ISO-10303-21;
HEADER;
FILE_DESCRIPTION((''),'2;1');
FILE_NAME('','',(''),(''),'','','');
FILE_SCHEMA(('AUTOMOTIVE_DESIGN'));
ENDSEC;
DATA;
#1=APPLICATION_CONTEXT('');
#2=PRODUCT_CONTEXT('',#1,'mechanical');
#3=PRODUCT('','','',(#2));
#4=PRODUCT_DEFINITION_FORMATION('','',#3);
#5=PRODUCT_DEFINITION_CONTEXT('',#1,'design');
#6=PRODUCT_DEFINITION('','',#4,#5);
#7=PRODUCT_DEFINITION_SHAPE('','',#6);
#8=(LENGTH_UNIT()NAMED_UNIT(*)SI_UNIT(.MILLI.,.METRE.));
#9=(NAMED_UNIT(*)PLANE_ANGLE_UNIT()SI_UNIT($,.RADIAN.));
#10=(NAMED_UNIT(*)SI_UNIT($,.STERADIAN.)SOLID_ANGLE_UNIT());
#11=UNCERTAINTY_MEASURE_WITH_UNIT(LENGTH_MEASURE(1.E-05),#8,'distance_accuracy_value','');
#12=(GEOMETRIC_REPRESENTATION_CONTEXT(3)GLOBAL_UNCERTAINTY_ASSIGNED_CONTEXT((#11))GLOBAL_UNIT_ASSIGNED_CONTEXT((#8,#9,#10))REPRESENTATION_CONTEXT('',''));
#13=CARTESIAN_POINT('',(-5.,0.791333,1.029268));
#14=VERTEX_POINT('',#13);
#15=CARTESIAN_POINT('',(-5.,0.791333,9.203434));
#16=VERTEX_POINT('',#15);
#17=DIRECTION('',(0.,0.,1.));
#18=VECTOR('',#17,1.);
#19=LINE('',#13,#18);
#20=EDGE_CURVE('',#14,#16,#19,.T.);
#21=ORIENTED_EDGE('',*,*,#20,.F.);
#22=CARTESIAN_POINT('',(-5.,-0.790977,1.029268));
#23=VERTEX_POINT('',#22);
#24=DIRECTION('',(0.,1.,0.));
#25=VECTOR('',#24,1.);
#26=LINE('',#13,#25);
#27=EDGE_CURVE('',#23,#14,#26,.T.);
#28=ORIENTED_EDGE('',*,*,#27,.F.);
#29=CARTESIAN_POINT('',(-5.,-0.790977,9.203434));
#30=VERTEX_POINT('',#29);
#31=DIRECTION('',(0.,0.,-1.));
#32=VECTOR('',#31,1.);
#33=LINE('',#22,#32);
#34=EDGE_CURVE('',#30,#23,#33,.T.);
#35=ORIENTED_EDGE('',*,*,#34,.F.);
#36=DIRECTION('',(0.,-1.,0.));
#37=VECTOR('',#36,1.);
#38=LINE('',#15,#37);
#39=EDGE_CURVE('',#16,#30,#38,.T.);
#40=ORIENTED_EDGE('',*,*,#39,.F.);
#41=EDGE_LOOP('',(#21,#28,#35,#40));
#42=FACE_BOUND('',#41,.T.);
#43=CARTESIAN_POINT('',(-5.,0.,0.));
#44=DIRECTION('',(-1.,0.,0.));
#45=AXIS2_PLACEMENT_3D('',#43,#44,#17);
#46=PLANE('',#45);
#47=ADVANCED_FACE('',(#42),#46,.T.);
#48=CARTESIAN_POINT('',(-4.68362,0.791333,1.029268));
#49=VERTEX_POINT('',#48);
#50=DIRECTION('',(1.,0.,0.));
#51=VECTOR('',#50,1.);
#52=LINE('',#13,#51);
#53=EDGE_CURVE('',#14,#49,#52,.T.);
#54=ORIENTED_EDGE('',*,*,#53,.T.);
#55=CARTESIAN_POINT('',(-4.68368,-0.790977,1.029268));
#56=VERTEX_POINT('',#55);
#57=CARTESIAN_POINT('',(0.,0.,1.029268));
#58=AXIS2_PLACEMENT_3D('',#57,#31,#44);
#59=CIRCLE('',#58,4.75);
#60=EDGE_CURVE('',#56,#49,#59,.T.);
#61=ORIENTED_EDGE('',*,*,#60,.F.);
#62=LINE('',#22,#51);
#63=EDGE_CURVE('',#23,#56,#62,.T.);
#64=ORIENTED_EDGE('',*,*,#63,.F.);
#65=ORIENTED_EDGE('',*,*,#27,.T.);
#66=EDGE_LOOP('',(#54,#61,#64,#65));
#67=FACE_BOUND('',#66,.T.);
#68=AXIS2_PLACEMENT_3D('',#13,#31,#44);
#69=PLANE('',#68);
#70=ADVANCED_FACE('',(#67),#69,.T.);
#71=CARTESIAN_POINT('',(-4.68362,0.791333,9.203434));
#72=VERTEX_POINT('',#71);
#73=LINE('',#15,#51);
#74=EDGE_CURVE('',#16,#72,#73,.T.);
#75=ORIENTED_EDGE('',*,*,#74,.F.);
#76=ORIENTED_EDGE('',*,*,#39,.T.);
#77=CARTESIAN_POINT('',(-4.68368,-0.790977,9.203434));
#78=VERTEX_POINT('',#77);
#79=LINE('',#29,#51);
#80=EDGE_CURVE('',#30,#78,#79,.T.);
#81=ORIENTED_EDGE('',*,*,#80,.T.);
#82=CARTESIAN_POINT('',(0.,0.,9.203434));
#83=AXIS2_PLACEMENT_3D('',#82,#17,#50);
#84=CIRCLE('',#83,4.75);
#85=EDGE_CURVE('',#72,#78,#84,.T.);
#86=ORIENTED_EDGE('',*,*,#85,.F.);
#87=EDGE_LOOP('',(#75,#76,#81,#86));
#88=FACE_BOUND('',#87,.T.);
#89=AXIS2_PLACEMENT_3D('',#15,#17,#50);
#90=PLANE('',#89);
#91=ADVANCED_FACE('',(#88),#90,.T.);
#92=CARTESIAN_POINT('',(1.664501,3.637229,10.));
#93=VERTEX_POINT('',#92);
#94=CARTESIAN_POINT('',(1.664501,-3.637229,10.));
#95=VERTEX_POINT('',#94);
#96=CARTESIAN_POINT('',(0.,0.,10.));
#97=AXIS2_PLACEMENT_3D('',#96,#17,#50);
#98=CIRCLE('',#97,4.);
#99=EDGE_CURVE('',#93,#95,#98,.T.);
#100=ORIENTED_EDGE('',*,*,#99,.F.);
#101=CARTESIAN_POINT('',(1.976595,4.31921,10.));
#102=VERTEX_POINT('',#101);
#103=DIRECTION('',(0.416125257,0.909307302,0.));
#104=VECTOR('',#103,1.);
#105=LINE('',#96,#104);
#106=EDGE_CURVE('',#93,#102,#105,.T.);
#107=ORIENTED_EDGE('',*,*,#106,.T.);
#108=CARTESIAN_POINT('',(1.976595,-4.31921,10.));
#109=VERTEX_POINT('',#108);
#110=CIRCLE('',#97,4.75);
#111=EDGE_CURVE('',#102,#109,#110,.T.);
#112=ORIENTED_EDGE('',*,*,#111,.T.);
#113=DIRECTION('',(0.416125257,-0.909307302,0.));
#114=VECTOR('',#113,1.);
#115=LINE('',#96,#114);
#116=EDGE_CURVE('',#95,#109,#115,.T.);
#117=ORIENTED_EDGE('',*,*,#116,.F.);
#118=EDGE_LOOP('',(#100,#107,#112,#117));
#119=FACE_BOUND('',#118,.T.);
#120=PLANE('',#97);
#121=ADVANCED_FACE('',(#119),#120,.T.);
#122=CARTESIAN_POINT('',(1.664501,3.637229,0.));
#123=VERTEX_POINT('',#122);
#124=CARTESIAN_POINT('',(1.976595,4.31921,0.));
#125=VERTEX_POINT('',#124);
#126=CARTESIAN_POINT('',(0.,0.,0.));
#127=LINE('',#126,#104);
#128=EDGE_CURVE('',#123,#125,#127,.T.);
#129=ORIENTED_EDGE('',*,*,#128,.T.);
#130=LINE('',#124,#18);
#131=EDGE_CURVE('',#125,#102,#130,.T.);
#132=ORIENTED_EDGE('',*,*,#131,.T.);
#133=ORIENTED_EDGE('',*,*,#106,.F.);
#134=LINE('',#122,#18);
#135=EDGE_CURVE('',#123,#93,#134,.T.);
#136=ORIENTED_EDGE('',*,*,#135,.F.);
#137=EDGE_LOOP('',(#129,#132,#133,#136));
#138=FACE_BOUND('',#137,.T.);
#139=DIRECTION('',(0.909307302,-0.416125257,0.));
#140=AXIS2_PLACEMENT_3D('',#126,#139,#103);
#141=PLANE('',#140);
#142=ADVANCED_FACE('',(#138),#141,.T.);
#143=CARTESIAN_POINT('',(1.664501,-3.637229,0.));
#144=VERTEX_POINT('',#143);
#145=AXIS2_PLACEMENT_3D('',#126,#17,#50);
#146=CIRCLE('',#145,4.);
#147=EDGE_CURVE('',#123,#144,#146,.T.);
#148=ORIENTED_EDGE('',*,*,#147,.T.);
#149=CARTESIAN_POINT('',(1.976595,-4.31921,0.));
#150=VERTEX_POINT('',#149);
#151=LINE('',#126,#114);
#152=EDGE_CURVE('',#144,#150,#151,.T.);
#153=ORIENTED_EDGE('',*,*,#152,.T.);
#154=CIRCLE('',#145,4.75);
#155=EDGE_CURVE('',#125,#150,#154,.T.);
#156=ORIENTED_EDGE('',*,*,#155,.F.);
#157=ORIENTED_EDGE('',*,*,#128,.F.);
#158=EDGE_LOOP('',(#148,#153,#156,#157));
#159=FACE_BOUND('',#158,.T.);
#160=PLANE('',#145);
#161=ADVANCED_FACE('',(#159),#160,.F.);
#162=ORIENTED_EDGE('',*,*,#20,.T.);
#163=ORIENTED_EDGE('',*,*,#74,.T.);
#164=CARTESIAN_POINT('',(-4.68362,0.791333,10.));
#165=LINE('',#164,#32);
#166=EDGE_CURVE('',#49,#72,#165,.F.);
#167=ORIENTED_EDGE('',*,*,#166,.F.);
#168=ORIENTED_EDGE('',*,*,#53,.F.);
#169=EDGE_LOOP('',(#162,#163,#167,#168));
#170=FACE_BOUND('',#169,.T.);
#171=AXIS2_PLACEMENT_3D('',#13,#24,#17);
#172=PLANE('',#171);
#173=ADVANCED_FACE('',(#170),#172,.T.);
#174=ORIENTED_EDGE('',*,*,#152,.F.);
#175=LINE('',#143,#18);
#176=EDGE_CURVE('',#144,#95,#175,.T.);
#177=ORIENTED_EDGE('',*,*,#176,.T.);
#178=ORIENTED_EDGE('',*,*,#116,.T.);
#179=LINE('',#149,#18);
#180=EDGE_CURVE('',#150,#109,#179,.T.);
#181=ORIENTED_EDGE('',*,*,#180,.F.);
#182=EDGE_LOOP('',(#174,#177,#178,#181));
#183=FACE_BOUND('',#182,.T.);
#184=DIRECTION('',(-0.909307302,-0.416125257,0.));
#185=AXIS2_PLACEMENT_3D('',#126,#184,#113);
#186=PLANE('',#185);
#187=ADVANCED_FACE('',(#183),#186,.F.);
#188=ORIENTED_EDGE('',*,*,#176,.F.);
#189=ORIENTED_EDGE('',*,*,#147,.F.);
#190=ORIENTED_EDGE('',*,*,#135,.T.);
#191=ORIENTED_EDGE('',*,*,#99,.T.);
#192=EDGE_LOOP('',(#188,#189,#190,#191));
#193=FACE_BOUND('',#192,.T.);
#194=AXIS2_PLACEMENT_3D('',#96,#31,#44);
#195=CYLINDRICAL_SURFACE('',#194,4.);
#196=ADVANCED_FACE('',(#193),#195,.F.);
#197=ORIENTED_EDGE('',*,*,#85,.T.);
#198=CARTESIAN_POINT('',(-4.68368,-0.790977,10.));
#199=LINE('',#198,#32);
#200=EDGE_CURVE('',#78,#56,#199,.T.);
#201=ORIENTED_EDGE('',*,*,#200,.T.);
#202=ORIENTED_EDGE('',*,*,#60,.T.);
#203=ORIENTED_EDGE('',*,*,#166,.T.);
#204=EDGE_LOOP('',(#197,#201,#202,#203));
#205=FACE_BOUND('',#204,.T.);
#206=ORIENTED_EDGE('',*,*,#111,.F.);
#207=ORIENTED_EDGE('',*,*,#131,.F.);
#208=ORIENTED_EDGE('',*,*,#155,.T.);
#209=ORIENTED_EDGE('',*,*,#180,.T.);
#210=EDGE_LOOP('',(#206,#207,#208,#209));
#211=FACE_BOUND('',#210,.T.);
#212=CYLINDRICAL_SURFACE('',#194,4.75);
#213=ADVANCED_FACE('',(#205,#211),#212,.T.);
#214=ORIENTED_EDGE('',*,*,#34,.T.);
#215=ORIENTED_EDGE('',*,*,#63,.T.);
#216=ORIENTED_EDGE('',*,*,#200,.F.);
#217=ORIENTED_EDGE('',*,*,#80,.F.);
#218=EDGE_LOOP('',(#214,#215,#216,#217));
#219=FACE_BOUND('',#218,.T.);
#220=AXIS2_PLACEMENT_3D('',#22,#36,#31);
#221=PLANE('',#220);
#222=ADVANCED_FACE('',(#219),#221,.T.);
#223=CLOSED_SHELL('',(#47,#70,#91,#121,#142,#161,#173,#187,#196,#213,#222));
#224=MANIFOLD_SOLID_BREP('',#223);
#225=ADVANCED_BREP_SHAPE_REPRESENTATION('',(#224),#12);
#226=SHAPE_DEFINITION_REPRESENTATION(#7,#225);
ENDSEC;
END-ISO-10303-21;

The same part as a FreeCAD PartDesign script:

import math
import FreeCAD as App
import Part
import Sketcher
from FreeCAD import Vector

doc = App.newDocument("Part")
body = doc.addObject("PartDesign::Body", "Body")

sketch1 = body.newObject("Sketcher::SketchObject", "Sketch")
sketch1.AttachmentSupport = (doc.getObject("XY_Plane"), [""])
sketch1.MapMode = "FlatFace"
sketch1.addGeometry([
    Part.Circle(Vector(0, 0, 0), Vector(0, 0, 1), 4.8),
    Part.Circle(Vector(0, 0, 0), Vector(0, 0, 1), 4),
], False)
sketch1.addConstraint([
    Sketcher.Constraint("Coincident", 0, 3, -1, 1),
    Sketcher.Constraint("Coincident", 1, 3, -1, 1),
    Sketcher.Constraint("Diameter", 1, 8.0),
    Sketcher.Constraint("Diameter", 0, 9.5),
])
pad1 = body.newObject("PartDesign::Pad", "Pad")
pad1.Profile = sketch1
pad1.Length = 10

sketch2 = body.newObject("Sketcher::SketchObject", "Sketch001")
sketch2.AttachmentSupport = (doc.getObject("XY_Plane"), [""])
sketch2.MapMode = "FlatFace"
sketch2.AttachmentOffset = App.Placement(Vector(0, 0, 10), App.Rotation())
sketch2.addGeometry([
    Part.ArcOfCircle(Part.Circle(Vector(0, 0, 0), Vector(0, 0, 1), 4), math.radians(0), math.radians(65.409801)),
    Part.ArcOfCircle(Part.Circle(Vector(0, 0, 0), Vector(0, 0, 1), 4), math.radians(-65.409801), math.radians(0)),
    Part.LineSegment(Vector(1.664501, -3.637229, 0), Vector(1.976595, -4.31921, 0)),
    Part.ArcOfCircle(Part.Circle(Vector(0, 0, 0), Vector(0, 0, 1), 4.75), math.radians(-65.409801), math.radians(0)),
    Part.ArcOfCircle(Part.Circle(Vector(0.000056, 0, 0), Vector(0, 0, 1), 4.749944), math.radians(0), math.radians(0.178783)),
    Part.ArcOfCircle(Part.Circle(Vector(0, 0, 0), Vector(0, 0, 1), 4.75), math.radians(0.17878), math.radians(65.409801)),
    Part.LineSegment(Vector(1.976595, 4.31921, 0), Vector(1.664501, 3.637229, 0)),
], False)
sketch2.addConstraint([
    Sketcher.Constraint("Coincident", 0, 1, 1, 2),
    Sketcher.Constraint("Coincident", 1, 1, 2, 1),
    Sketcher.Constraint("Coincident", 2, 2, 3, 1),
    Sketcher.Constraint("Coincident", 3, 2, 4, 1),
    Sketcher.Constraint("Coincident", 4, 2, 5, 1),
    Sketcher.Constraint("Coincident", 5, 2, 6, 1),
    Sketcher.Constraint("Coincident", 6, 2, 0, 2),
    Sketcher.Constraint("Coincident", 0, 3, -1, 1),
    Sketcher.Constraint("Coincident", 1, 3, -1, 1),
    Sketcher.Constraint("Coincident", 3, 3, -1, 1),
    Sketcher.Constraint("Coincident", 5, 3, -1, 1),
    Sketcher.Constraint("PointOnObject", 4, 3, -1),
    Sketcher.Constraint("PointOnObject", 0, 1, -1),
    Sketcher.Constraint("PointOnObject", 3, 2, -1),
    Sketcher.Constraint("Radius", 0, 4.0),
    Sketcher.Constraint("Radius", 3, 4.75),
    Sketcher.Constraint("Radius", 4, 4.749944),
    Sketcher.Constraint("DistanceX", -1, 1, 1, 1, 1.664501),
    Sketcher.Constraint("DistanceX", -1, 1, 6, 2, 1.664501),
    Sketcher.Constraint("DistanceY", 2, 2, -1, 1, 4.31921),
    Sketcher.Constraint("DistanceY", -1, 1, 4, 2, 0.014821),
    Sketcher.Constraint("DistanceY", -1, 1, 5, 2, 4.31921),
])
pocket1 = body.newObject("PartDesign::Pocket", "Pocket")
pocket1.Profile = sketch2
pocket1.Length = 10

sketch3 = body.newObject("Sketcher::SketchObject", "Sketch002")
sketch3.AttachmentSupport = (doc.getObject("YZ_Plane"), [""])
sketch3.MapMode = "FlatFace"
sketch3.AttachmentOffset = App.Placement(Vector(0, 0, -4.5), App.Rotation())
sketch3.addGeometry([
    Part.LineSegment(Vector(0.8, 9.2, 0), Vector(-0.8, 9.2, 0)),
    Part.LineSegment(Vector(-0.8, 9.2, 0), Vector(-0.8, 1, 0)),
    Part.LineSegment(Vector(-0.8, 1, 0), Vector(0.8, 1, 0)),
    Part.LineSegment(Vector(0.8, 1, 0), Vector(0.8, 9.2, 0)),
], False)
sketch3.addConstraint([
    Sketcher.Constraint("Coincident", 0, 2, 1, 1),
    Sketcher.Constraint("Coincident", 1, 2, 2, 1),
    Sketcher.Constraint("Coincident", 2, 2, 3, 1),
    Sketcher.Constraint("Coincident", 3, 2, 0, 1),
    Sketcher.Constraint("Horizontal", 0),
    Sketcher.Constraint("Vertical", 1),
    Sketcher.Constraint("Horizontal", 2),
    Sketcher.Constraint("Vertical", 3),
    Sketcher.Constraint("DistanceX", 0, 2, 0, 1, 1.58231),
    Sketcher.Constraint("DistanceY", 1, 2, 1, 1, 8.174166),
    Sketcher.Constraint("DistanceX", 0, 2, -1, 1, 0.790977),
    Sketcher.Constraint("DistanceY", -1, 1, 0, 2, 9.203434),
])
pad2 = body.newObject("PartDesign::Pad", "Pad001")
pad2.Profile = sketch3
pad2.Length = 0.5
pad2.Reversed = True

doc.recompute()
